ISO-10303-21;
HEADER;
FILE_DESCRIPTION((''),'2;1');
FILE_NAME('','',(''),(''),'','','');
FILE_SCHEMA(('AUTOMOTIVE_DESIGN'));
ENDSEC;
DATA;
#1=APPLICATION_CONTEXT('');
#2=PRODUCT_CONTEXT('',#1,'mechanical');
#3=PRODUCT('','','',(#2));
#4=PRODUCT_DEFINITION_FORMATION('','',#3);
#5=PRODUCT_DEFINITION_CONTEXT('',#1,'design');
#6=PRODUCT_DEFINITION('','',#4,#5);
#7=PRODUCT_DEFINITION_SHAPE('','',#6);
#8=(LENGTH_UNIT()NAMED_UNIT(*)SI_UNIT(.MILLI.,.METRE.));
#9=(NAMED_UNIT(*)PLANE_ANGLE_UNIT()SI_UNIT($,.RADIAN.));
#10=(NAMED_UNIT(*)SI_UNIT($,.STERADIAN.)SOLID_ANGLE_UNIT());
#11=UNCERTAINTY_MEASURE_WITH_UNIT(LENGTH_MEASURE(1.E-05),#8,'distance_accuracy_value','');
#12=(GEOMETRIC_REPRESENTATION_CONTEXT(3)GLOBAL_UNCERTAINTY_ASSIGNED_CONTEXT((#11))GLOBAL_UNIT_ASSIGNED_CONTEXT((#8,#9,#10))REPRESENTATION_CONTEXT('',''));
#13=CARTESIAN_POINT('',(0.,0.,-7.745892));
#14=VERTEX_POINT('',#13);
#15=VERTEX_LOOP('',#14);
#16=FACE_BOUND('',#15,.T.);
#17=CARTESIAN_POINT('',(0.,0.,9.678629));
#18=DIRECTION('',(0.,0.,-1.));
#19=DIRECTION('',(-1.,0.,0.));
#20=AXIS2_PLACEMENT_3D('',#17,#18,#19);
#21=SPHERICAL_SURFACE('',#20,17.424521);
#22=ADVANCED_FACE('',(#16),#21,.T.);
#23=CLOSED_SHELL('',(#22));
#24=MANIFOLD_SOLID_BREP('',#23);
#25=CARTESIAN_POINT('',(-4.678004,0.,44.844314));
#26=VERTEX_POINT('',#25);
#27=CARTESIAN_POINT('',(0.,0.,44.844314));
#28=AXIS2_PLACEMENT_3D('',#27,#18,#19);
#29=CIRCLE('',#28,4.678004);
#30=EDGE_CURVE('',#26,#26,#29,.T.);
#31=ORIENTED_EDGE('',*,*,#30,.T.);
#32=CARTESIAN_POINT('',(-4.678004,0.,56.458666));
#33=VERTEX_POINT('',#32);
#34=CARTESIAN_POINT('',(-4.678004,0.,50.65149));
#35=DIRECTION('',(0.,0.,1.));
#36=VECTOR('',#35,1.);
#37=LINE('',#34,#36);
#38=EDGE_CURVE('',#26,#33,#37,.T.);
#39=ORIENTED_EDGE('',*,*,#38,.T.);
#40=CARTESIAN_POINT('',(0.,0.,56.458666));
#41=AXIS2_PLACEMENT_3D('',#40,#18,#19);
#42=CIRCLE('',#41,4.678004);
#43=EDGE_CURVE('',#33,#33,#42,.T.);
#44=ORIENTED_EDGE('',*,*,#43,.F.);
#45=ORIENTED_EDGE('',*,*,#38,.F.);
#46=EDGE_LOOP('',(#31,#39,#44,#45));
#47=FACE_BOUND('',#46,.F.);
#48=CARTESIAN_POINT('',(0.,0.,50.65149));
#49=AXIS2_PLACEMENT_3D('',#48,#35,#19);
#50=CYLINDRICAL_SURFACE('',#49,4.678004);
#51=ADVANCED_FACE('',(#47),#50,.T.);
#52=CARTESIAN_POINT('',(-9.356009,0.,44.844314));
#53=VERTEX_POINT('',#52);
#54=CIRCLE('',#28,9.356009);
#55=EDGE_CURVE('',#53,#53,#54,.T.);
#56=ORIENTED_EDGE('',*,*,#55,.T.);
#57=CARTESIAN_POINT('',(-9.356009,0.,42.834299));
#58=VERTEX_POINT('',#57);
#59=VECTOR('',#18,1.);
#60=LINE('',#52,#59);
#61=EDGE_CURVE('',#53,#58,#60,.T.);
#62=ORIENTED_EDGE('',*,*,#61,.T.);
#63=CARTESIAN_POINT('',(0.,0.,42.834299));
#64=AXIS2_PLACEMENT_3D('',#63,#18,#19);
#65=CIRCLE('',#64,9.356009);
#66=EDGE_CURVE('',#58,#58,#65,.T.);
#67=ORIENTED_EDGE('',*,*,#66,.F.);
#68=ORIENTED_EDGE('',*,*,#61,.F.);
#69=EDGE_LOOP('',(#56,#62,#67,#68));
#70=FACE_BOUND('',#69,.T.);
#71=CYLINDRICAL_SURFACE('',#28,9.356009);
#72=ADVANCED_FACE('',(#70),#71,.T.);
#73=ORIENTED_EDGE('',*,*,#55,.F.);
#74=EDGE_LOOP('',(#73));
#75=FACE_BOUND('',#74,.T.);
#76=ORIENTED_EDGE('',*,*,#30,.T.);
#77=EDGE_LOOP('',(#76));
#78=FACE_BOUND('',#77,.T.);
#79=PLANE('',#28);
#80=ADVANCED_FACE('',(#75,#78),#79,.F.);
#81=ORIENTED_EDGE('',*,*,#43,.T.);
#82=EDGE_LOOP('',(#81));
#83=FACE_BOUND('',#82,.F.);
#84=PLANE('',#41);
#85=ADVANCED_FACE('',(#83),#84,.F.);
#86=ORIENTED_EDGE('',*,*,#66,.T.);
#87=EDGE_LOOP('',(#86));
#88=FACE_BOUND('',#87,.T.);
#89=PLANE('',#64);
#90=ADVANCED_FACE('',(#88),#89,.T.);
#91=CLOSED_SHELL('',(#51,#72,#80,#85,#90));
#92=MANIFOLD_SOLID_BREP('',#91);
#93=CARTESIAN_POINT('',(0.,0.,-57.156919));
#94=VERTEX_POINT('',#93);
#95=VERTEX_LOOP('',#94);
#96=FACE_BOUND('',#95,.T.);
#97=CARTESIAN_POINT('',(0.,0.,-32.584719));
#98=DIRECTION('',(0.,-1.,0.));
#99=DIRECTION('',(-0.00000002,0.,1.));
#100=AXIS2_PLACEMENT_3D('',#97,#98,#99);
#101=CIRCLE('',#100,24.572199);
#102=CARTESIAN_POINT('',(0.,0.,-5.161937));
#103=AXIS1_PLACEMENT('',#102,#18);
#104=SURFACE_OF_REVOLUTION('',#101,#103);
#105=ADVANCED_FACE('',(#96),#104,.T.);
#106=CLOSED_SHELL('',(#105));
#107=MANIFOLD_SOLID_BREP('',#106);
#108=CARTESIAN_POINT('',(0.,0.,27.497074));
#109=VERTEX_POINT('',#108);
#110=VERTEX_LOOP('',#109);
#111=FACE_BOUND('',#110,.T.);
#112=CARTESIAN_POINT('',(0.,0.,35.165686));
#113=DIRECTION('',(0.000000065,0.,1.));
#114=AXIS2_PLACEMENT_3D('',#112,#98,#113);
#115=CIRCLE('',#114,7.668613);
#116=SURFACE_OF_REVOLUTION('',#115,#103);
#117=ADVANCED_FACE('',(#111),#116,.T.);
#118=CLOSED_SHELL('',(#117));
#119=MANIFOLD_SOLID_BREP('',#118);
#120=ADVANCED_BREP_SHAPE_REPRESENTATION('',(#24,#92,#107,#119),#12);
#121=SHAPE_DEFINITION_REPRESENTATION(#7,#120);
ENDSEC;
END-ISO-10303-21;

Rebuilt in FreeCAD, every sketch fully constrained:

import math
import FreeCAD as App
import Part
import Sketcher
from FreeCAD import Vector
Q = App.Units.Quantity


def add_polygon(sketch, points):
    """Adds a closed chain of lines whose ends are joined by coincident constraints."""
    first, n = sketch.GeometryCount, len(points)
    for a, b in zip(points, points[1:] + points[:1]):
        sketch.addGeometry(Part.LineSegment(App.Vector(*a, 0), App.Vector(*b, 0)), False)
    for i in range(n):
        sketch.addConstraint(Sketcher.Constraint("Coincident", first + i, 2, first + (i + 1) % n, 1))

doc = App.newDocument("Part")
body = doc.addObject("PartDesign::Body", "Body")
body.AllowCompound = True

# Sketch on XZ plane
sketch1 = body.newObject("Sketcher::SketchObject", "Sketch")
sketch1.AttachmentSupport = (doc.getObject("XZ_Plane"), [""])
sketch1.MapMode = "FlatFace"
add_polygon(sketch1, [(-9.4, 44.8), (-9.4, 42.8), (0, 42.8), (0, 56.5), (-4.7, 56.5), (-4.7, 44.8)])  # lines 0-5
sketch1.addGeometry(Part.ArcOfCircle(Part.Circle(Vector(0, 35.2, 0), Vector(0, 0, 1), 7.7), math.radians(90), math.radians(270)), False)  # 6
sketch1.addGeometry(Part.LineSegment(Vector(0, 27.5, 0), Vector(0, 42.8, 0)), False)  # 7
sketch1.addGeometry(Part.ArcOfCircle(Part.Circle(Vector(0, 9.7, 0), Vector(0, 0, 1), 17.4), math.radians(90), math.radians(270)), False)  # 8
sketch1.addGeometry(Part.LineSegment(Vector(0, -7.7, 0), Vector(0, 27.1, 0)), False)  # 9
sketch1.addGeometry(Part.LineSegment(Vector(0, -57.2, 0), Vector(0, -8, 0)), False)  # 10
sketch1.addGeometry(Part.ArcOfCircle(Part.Circle(Vector(0, -32.6, 0), Vector(0, 0, 1), 24.6), math.radians(90), math.radians(270)), False)  # 11
sketch1.addConstraint(Sketcher.Constraint("Coincident", 6, 1, 7, 2))
sketch1.addConstraint(Sketcher.Constraint("Coincident", 7, 1, 6, 2))
sketch1.addConstraint(Sketcher.Constraint("Coincident", 8, 1, 9, 2))
sketch1.addConstraint(Sketcher.Constraint("Coincident", 9, 1, 8, 2))
sketch1.addConstraint(Sketcher.Constraint("Coincident", 10, 1, 11, 2))
sketch1.addConstraint(Sketcher.Constraint("Coincident", 11, 1, 10, 2))
sketch1.addConstraint(Sketcher.Constraint("Vertical", 0))
sketch1.addConstraint(Sketcher.Constraint("Horizontal", 1))
sketch1.addConstraint(Sketcher.Constraint("Vertical", 2))
sketch1.addConstraint(Sketcher.Constraint("Horizontal", 3))
sketch1.addConstraint(Sketcher.Constraint("Vertical", 4))
sketch1.addConstraint(Sketcher.Constraint("Horizontal", 5))
sketch1.addConstraint(Sketcher.Constraint("Vertical", 7))
sketch1.addConstraint(Sketcher.Constraint("Vertical", 9))
sketch1.addConstraint(Sketcher.Constraint("Vertical", 10))
sketch1.addConstraint(Sketcher.Constraint("Coincident", 6, 1, 1, 2))
sketch1.addConstraint(Sketcher.Constraint("PointOnObject", 6, 3, -2))
sketch1.addConstraint(Sketcher.Constraint("PointOnObject", 8, 3, -2))
sketch1.addConstraint(Sketcher.Constraint("PointOnObject", 11, 3, -2))
sketch1.addConstraint(Sketcher.Constraint("PointOnObject", 1, 2, -2))
sketch1.addConstraint(Sketcher.Constraint("PointOnObject", 8, 1, -2))
sketch1.addConstraint(Sketcher.Constraint("PointOnObject", 10, 1, -2))
sketch1.addConstraint(Sketcher.Constraint("Equal", 3, 5))
sketch1.addConstraint(Sketcher.Constraint("Radius", 11, Q("24.572199 mm")))
sketch1.addConstraint(Sketcher.Constraint("Radius", 8, Q("17.424521 mm")))
sketch1.addConstraint(Sketcher.Constraint("Radius", 6, Q("7.668613 mm")))
sketch1.addConstraint(Sketcher.Constraint("DistanceX", 1, 1, 1, 2, Q("9.356009 mm")))
sketch1.addConstraint(Sketcher.Constraint("DistanceY", -1, 1, 0, 2, Q("42.834299 mm")))
sketch1.addConstraint(Sketcher.Constraint("DistanceY", 0, 2, 0, 1, Q("2.010015 mm")))
sketch1.addConstraint(Sketcher.Constraint("DistanceY", 2, 1, 2, 2, Q("13.624367 mm")))
sketch1.addConstraint(Sketcher.Constraint("DistanceY", -1, 1, 8, 3, Q("9.678629 mm")))
sketch1.addConstraint(Sketcher.Constraint("DistanceY", 11, 3, -1, 1, Q("32.584719 mm")))
revolution = body.newObject("PartDesign::Revolution", "Revolution")
revolution.Profile = sketch1
revolution.ReferenceAxis = (sketch1, ["V_Axis"])
revolution.Angle = 360

doc.recompute()
